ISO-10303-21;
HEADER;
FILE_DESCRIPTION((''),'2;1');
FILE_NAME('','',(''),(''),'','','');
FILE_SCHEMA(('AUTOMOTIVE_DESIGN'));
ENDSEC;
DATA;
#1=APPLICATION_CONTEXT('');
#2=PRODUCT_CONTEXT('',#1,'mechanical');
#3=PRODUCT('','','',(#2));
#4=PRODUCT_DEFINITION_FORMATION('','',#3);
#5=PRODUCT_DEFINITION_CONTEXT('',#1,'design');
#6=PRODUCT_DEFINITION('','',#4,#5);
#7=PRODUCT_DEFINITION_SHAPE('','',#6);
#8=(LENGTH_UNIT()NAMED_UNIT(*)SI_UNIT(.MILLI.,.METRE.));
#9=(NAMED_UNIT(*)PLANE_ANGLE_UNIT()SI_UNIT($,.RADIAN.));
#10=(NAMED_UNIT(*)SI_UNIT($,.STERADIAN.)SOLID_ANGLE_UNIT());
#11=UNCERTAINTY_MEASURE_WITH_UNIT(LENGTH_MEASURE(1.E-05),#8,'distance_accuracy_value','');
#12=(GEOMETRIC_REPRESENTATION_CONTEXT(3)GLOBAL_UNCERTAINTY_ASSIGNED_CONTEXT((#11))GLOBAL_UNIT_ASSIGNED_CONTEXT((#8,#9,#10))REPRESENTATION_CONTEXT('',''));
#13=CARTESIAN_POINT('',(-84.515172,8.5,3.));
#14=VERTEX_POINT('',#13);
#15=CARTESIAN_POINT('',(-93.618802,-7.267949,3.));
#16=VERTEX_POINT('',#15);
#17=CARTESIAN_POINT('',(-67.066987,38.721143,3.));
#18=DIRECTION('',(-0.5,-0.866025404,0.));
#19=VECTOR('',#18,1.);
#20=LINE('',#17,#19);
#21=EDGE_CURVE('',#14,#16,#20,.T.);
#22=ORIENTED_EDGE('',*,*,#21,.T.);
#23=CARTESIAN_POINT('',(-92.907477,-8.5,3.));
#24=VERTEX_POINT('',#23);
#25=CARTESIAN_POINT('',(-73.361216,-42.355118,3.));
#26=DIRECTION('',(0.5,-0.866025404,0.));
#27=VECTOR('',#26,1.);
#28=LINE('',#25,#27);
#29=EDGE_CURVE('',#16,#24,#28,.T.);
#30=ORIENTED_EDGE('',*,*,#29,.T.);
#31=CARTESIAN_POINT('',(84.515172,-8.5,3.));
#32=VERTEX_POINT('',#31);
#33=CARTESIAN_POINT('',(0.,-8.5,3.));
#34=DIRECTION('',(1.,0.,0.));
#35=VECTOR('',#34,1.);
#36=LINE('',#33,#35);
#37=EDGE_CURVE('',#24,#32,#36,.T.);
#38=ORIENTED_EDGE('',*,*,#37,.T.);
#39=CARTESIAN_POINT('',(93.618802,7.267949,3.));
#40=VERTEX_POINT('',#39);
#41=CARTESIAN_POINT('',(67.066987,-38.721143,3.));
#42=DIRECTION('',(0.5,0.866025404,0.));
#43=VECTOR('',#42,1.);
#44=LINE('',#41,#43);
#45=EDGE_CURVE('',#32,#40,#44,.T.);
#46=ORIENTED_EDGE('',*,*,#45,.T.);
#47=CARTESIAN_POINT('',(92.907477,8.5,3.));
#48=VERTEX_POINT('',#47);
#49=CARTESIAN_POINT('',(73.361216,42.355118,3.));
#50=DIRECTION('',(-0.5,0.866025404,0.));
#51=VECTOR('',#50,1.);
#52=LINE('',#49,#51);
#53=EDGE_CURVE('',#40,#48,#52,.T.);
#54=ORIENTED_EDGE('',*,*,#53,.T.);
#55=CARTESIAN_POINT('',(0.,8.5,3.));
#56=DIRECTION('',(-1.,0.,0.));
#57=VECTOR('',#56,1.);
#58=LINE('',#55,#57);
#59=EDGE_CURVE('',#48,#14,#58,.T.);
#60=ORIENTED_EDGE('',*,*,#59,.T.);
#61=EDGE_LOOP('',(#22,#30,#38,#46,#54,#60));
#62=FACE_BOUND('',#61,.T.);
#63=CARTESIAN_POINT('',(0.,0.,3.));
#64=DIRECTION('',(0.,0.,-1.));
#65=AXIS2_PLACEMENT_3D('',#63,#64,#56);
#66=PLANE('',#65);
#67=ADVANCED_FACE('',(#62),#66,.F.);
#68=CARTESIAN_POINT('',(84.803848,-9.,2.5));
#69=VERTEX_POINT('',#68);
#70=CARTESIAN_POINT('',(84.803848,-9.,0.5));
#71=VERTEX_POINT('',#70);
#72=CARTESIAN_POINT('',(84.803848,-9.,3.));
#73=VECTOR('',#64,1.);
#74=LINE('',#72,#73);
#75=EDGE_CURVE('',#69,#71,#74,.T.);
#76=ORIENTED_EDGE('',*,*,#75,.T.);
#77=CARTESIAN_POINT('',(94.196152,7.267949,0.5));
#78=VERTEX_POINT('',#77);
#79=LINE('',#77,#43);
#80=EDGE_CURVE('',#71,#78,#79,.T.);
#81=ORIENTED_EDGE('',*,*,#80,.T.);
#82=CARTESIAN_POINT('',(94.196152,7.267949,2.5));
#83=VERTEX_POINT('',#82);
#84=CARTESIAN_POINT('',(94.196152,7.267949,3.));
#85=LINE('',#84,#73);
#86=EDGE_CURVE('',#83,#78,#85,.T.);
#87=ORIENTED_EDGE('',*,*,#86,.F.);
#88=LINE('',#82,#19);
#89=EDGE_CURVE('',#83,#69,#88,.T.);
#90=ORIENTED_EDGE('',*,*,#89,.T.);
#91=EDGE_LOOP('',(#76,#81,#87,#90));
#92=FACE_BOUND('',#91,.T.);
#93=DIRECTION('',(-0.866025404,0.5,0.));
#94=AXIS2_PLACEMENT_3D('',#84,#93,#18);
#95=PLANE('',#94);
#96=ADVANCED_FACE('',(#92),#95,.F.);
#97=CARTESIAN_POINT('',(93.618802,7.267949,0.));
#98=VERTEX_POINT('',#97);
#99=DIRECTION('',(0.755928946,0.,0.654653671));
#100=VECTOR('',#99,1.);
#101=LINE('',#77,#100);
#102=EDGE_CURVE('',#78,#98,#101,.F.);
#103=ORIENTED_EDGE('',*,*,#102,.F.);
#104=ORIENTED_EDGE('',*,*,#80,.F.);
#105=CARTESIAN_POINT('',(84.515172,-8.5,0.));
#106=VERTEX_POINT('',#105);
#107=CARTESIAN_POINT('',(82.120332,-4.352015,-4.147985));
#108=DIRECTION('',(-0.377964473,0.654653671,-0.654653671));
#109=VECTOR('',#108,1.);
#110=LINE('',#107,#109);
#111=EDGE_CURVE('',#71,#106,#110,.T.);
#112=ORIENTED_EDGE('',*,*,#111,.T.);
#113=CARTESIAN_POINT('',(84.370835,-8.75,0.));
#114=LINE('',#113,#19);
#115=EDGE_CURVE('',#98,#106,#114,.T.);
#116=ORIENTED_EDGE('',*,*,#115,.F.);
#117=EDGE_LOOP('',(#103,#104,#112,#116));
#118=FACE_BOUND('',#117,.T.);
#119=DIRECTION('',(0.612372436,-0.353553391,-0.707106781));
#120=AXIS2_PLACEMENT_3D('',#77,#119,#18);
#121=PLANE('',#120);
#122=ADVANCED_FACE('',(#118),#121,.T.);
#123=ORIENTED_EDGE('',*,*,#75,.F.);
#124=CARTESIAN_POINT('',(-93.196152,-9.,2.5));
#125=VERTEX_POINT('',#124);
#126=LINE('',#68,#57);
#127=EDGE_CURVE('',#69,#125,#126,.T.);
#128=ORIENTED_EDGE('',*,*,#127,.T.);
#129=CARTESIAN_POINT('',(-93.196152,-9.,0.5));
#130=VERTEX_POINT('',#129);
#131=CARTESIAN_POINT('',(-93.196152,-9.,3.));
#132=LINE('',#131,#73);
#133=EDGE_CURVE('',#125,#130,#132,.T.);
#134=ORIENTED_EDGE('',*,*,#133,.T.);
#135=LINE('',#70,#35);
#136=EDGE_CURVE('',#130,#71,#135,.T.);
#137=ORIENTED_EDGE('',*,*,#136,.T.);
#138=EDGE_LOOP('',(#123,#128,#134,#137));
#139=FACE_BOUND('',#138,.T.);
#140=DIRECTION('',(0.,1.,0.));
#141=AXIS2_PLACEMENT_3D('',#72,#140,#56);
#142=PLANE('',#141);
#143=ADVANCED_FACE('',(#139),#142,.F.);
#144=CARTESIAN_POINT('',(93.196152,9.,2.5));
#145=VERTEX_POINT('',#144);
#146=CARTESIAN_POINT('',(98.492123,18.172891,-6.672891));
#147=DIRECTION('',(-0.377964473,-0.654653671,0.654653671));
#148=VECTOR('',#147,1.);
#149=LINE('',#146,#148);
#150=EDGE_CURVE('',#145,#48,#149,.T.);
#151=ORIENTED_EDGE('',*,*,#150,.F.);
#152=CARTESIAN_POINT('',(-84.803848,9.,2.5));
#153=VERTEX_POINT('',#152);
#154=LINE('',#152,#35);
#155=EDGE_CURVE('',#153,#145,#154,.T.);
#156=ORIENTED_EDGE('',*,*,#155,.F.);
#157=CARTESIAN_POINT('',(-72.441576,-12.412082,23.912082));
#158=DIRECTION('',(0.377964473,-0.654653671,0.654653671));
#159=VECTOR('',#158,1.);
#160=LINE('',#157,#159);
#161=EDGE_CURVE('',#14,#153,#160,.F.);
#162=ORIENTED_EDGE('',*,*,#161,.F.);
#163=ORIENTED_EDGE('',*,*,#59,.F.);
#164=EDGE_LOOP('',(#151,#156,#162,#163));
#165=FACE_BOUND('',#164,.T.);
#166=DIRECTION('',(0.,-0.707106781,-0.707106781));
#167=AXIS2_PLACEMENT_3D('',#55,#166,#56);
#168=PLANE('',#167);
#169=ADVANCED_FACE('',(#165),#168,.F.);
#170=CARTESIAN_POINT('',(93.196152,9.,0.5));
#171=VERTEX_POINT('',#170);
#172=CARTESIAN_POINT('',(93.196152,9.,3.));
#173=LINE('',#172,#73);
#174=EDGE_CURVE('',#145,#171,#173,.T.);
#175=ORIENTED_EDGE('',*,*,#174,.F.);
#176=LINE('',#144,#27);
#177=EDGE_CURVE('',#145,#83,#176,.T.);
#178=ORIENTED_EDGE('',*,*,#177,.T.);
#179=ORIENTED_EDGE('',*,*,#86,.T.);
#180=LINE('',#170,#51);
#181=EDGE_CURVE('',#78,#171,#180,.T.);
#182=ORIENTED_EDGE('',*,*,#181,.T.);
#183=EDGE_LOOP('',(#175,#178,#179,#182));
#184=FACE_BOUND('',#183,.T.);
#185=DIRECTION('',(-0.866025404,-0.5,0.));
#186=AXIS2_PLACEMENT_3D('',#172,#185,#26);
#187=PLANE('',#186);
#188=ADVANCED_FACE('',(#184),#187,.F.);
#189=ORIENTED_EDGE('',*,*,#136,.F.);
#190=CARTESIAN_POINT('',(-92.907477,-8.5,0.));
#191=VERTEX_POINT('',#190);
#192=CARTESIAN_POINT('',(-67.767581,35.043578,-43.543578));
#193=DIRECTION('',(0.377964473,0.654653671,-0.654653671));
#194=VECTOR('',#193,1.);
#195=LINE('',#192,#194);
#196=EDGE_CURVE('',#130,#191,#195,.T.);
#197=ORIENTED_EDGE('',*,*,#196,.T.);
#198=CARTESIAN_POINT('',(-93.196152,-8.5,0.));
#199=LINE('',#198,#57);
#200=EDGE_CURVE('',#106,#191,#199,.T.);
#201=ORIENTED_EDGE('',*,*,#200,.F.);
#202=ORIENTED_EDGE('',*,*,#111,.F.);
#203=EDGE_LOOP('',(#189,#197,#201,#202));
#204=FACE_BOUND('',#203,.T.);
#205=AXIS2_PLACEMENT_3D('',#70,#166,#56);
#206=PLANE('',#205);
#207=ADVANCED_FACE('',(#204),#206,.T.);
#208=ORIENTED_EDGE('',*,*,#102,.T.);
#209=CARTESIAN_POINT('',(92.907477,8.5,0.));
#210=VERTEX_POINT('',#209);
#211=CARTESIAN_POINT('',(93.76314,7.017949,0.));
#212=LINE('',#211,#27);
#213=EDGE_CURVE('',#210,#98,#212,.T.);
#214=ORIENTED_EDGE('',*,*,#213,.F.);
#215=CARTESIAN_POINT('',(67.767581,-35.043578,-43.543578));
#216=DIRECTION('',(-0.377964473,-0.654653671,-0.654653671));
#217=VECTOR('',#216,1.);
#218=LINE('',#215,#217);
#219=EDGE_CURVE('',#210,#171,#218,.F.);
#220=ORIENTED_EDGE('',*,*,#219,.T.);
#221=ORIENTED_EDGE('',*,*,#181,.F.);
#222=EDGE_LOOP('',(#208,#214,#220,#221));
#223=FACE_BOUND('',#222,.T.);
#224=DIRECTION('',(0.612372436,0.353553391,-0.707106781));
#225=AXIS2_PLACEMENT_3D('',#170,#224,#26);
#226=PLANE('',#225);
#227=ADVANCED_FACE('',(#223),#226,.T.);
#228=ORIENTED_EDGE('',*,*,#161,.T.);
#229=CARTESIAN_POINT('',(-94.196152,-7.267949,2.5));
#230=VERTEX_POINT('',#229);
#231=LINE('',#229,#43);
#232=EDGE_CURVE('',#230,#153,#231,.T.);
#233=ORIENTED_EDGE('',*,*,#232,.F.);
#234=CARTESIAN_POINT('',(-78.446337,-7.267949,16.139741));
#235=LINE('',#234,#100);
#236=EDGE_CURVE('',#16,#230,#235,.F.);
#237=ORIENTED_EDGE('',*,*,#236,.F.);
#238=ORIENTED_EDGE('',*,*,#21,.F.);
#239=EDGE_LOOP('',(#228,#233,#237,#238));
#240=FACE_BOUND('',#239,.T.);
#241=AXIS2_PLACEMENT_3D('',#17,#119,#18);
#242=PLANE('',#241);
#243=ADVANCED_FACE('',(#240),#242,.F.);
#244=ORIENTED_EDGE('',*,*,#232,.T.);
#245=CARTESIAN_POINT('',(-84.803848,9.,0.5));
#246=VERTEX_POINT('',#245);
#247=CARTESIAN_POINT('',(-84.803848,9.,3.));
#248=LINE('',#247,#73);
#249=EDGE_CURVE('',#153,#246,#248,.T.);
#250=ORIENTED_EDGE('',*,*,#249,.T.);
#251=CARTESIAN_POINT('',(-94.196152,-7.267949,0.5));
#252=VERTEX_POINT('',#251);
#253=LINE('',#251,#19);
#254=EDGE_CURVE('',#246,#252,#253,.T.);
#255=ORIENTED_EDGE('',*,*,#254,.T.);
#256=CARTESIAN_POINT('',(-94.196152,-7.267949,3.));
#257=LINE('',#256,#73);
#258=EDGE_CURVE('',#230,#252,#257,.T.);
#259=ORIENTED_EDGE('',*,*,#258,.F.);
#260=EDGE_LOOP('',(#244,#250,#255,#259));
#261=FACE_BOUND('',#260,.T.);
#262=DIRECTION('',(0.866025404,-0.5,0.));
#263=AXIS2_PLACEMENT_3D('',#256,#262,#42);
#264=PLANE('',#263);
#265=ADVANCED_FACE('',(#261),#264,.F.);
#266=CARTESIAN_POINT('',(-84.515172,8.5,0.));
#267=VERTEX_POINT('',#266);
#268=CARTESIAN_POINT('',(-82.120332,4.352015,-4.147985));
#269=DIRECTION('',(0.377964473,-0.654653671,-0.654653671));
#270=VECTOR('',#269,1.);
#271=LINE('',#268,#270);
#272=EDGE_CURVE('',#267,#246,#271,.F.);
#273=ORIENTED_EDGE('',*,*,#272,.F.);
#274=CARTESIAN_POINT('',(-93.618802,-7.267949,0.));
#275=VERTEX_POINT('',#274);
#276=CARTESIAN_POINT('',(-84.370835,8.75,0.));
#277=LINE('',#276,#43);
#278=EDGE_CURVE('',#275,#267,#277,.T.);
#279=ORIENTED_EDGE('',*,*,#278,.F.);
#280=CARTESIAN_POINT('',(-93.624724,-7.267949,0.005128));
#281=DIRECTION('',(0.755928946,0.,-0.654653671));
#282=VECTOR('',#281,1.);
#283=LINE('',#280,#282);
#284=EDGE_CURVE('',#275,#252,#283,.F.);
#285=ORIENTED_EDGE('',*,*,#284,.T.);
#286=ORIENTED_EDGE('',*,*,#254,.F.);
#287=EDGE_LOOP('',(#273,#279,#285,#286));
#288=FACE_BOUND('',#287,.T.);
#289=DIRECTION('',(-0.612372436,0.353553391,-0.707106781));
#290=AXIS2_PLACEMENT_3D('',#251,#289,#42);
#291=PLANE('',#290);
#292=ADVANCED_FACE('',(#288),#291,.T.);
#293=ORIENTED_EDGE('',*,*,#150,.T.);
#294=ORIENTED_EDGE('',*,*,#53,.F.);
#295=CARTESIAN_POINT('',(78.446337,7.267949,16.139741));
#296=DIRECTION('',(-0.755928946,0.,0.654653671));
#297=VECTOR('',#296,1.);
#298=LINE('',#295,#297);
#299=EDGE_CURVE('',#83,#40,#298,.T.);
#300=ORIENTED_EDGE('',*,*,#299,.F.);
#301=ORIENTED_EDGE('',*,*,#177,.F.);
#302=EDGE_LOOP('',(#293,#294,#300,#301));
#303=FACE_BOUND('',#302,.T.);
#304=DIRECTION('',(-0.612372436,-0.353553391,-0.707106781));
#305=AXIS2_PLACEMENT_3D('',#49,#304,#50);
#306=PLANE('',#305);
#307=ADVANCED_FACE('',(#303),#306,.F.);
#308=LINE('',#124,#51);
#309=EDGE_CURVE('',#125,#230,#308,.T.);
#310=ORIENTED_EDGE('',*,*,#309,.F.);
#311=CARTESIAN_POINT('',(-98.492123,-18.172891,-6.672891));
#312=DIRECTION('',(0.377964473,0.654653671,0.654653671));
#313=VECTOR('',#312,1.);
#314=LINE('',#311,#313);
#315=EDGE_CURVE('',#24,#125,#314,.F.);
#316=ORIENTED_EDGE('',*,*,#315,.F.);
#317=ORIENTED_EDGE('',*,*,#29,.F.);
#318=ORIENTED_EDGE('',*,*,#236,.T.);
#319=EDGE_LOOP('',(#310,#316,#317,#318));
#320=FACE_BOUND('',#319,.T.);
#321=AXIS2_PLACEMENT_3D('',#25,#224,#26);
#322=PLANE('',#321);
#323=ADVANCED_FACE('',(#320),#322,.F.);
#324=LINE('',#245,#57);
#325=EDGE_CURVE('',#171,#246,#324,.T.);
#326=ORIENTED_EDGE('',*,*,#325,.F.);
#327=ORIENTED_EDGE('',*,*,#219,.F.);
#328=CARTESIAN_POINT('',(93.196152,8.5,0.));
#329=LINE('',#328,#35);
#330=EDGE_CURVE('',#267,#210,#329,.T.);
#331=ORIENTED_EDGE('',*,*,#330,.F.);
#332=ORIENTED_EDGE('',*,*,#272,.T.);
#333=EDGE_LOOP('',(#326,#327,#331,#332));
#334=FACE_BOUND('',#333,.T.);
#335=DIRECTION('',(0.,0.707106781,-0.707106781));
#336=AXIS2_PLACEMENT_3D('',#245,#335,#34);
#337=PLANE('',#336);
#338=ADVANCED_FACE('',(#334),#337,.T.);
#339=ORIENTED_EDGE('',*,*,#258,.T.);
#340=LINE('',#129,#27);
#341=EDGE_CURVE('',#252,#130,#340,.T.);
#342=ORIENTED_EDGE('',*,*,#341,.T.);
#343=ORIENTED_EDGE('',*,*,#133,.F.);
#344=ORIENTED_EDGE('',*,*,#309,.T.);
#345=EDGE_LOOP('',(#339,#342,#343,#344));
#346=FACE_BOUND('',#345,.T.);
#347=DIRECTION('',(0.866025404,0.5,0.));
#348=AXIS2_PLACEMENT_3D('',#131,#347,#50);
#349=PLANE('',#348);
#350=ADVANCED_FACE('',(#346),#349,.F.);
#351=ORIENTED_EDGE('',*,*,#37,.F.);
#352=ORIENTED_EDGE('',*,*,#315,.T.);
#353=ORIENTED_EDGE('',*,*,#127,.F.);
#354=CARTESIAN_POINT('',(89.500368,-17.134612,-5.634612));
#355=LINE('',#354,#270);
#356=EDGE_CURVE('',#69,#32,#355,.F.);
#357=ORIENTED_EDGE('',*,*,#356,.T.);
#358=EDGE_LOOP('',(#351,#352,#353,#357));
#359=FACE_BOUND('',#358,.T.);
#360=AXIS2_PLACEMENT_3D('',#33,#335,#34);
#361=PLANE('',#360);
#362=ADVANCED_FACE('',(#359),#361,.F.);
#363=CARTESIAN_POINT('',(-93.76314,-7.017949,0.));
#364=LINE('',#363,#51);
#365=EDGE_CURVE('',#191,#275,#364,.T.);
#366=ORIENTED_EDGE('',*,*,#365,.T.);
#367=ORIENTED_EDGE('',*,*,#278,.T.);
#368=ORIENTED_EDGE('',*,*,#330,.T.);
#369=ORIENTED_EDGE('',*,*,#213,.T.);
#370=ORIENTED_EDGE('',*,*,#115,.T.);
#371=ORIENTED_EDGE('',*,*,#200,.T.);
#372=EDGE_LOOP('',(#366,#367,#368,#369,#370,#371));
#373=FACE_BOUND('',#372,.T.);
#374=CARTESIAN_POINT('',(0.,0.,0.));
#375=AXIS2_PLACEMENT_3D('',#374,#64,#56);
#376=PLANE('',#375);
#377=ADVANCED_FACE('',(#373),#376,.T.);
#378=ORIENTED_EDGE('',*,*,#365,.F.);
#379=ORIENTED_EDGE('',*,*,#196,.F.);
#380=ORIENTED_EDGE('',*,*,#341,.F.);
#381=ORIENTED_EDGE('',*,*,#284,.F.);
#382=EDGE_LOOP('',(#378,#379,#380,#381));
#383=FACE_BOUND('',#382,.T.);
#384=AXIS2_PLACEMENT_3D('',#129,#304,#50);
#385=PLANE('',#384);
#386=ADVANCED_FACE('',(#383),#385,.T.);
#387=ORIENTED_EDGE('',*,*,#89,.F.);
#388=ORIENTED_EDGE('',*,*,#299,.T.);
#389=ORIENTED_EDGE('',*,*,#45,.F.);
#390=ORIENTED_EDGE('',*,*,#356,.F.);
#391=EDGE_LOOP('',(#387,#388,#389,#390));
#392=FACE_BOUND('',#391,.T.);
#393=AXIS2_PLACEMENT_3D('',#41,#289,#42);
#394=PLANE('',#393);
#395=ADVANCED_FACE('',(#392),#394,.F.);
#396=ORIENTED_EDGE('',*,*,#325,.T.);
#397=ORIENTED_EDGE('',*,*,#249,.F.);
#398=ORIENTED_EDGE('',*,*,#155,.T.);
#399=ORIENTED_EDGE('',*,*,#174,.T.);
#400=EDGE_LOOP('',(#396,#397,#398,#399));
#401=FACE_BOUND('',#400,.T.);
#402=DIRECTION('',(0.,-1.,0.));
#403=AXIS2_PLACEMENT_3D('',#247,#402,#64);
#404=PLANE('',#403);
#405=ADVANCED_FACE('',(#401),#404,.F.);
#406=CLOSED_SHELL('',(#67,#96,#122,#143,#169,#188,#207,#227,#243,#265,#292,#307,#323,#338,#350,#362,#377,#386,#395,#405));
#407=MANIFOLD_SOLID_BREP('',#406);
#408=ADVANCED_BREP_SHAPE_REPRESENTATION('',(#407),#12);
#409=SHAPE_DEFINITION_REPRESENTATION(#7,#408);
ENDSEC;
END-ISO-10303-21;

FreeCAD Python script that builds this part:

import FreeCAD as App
import Part
import Sketcher

V = App.Vector
Q = App.Units.Quantity


def edges_at(feature, points):
    """Names of the edges that pass closest to the given points."""
    edges = feature.Shape.Edges
    near = lambda p: min(range(len(edges)), key=lambda i: edges[i].distToShape(Part.Vertex(*p))[0])
    return sorted({f"Edge{near(p) + 1}" for p in points})


def add_polygon(sketch, points):
    """Adds a closed chain of lines whose ends are joined by coincident constraints."""
    first, n = sketch.GeometryCount, len(points)
    for a, b in zip(points, points[1:] + points[:1]):
        sketch.addGeometry(Part.LineSegment(App.Vector(*a, 0), App.Vector(*b, 0)), False)
    for i in range(n):
        sketch.addConstraint(Sketcher.Constraint("Coincident", first + i, 2, first + (i + 1) % n, 1))

doc = App.newDocument("Part")
body = doc.addObject("PartDesign::Body", "Body")

sketch1 = body.newObject("Sketcher::SketchObject", "Sketch")
sketch1.AttachmentSupport = (doc.getObject("XY_Plane"), [""])
sketch1.MapMode = "FlatFace"
add_polygon(sketch1, [(-93.2, -9), (84.8, -9), (94.2, 7.3), (93.2, 9), (-84.8, 9), (-94.2, -7.3)])
sketch1.addConstraint([
    Sketcher.Constraint("Horizontal", 0),
    Sketcher.Constraint("Horizontal", 3),
    Sketcher.Constraint("Symmetric", 0, 2, 3, 2, -1, 1),
    Sketcher.Constraint("Symmetric", 1, 2, 4, 2, -1, 1),
    Sketcher.Constraint("Parallel", 2, 5),
    Sketcher.Constraint("DistanceX", 0, 1, 0, 2, Q("178 mm")),
    Sketcher.Constraint("Angle", 1, Q("60 deg")),
    Sketcher.Constraint("Angle", 2, Q("120 deg")),
    Sketcher.Constraint("Distance", 2, Q("2 mm")),
    Sketcher.Constraint("DistanceY", 0, 2, -1, 1, Q("9 mm")),
])
pad1 = body.newObject("PartDesign::Pad", "Pad")
pad1.Profile = sketch1
pad1.Length = 3
doc.recompute()

chamfer = body.newObject("PartDesign::Chamfer", "Chamfer")
chamfer.Base = (pad1, edges_at(pad1, [
    (4.196, 9, 3),
    (-89.5, 0.866, 3),
    (-93.696, -8.134, 3),
    (-4.196, -9, 3),
    (89.5, -0.866, 3),
    (-4.196, -9, 0),
    (-93.696, -8.134, 0),
    (-89.5, 0.866, 0),
    (4.196, 9, 0),
    (93.696, 8.134, 0),
    (89.5, -0.866, 0),
    (93.696, 8.134, 3),
]))
chamfer.Size = 0.5

doc.recompute()
